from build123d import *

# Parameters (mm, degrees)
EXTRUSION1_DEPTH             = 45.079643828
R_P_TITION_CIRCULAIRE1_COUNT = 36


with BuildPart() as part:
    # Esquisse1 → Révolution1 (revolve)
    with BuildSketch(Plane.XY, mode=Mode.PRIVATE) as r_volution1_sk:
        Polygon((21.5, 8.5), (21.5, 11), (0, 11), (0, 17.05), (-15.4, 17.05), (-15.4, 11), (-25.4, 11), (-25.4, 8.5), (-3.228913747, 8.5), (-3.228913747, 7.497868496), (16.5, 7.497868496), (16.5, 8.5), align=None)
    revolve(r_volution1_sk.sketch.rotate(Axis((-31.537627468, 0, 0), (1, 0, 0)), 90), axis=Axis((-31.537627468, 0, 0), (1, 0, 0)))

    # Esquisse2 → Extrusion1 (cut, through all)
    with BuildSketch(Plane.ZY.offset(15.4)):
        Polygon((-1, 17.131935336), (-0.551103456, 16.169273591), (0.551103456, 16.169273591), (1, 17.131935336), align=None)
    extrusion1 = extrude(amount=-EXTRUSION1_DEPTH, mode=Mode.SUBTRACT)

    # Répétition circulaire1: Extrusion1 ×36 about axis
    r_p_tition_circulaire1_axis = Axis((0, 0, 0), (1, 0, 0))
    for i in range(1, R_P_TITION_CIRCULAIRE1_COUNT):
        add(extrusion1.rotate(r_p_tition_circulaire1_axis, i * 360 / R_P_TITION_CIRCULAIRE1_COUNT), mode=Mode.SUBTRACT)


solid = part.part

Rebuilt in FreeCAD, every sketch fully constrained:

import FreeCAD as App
import Part
import Sketcher
from FreeCAD import Vector
Q = App.Units.Quantity

doc = App.newDocument("Part")
body = doc.addObject("PartDesign::Body", "Body")

sketch1 = body.newObject("Sketcher::SketchObject", "Sketch")
sketch1.AttachmentSupport = (doc.getObject("XY_Plane"), [""])
sketch1.MapMode = "FlatFace"
sketch1.addGeometry([
    Part.LineSegment(Vector(21.5, 8.5, 0), Vector(21.5, 11, 0)),
    Part.LineSegment(Vector(21.5, 11, 0), Vector(0, 11, 0)),
    Part.LineSegment(Vector(0, 11, 0), Vector(0, 17.1, 0)),
    Part.LineSegment(Vector(0, 17.1, 0), Vector(-15.4, 17.1, 0)),
    Part.LineSegment(Vector(-15.4, 17.1, 0), Vector(-15.4, 11, 0)),
    Part.LineSegment(Vector(-15.4, 11, 0), Vector(-25.4, 11, 0)),
    Part.LineSegment(Vector(-25.4, 11, 0), Vector(-25.4, 8.5, 0)),
    Part.LineSegment(Vector(-25.4, 8.5, 0), Vector(-3.2, 8.5, 0)),
    Part.LineSegment(Vector(-3.2, 8.5, 0), Vector(-3.2, 7.5, 0)),
    Part.LineSegment(Vector(-3.2, 7.5, 0), Vector(16.5, 7.5, 0)),
    Part.LineSegment(Vector(16.5, 7.5, 0), Vector(16.5, 8.5, 0)),
    Part.LineSegment(Vector(16.5, 8.5, 0), Vector(21.5, 8.5, 0)),
], False)
sketch1.addConstraint([
    Sketcher.Constraint("Coincident", 0, 2, 1, 1),
    Sketcher.Constraint("Coincident", 1, 2, 2, 1),
    Sketcher.Constraint("Coincident", 2, 2, 3, 1),
    Sketcher.Constraint("Coincident", 3, 2, 4, 1),
    Sketcher.Constraint("Coincident", 4, 2, 5, 1),
    Sketcher.Constraint("Coincident", 5, 2, 6, 1),
    Sketcher.Constraint("Coincident", 6, 2, 7, 1),
    Sketcher.Constraint("Coincident", 7, 2, 8, 1),
    Sketcher.Constraint("Coincident", 8, 2, 9, 1),
    Sketcher.Constraint("Coincident", 9, 2, 10, 1),
    Sketcher.Constraint("Coincident", 10, 2, 11, 1),
    Sketcher.Constraint("Coincident", 11, 2, 0, 1),
    Sketcher.Constraint("Vertical", 0),
    Sketcher.Constraint("Horizontal", 1),
    Sketcher.Constraint("Vertical", 2),
    Sketcher.Constraint("Horizontal", 3),
    Sketcher.Constraint("Vertical", 4),
    Sketcher.Constraint("Horizontal", 5),
    Sketcher.Constraint("Vertical", 6),
    Sketcher.Constraint("Horizontal", 7),
    Sketcher.Constraint("Vertical", 8),
    Sketcher.Constraint("Horizontal", 9),
    Sketcher.Constraint("Vertical", 10),
    Sketcher.Constraint("Horizontal", 11),
    Sketcher.Constraint("PointOnObject", 1, 2, -2),
    Sketcher.Constraint("Horizontal", 1, 2, 4, 2),
    Sketcher.Constraint("Horizontal", 7, 2, 10, 2),
    Sketcher.Constraint("DistanceX", 5, 2, 5, 1, Q("10 mm")),
    Sketcher.Constraint("DistanceX", 11, 1, 11, 2, Q("5 mm")),
    Sketcher.Constraint("DistanceX", 1, 2, 1, 1, Q("21.5 mm")),
    Sketcher.Constraint("DistanceX", 3, 2, 3, 1, Q("15.4 mm")),
    Sketcher.Constraint("DistanceY", 0, 1, 0, 2, Q("2.5 mm")),
    Sketcher.Constraint("DistanceY", -1, 1, 0, 2, Q("11 mm")),
    Sketcher.Constraint("DistanceY", 2, 1, 2, 2, Q("6.05 mm")),
    Sketcher.Constraint("DistanceY", 8, 2, 8, 1, Q("1.002132 mm")),
    Sketcher.Constraint("DistanceX", 7, 1, 7, 2, Q("22.171086 mm")),
])
revolution = body.newObject("PartDesign::Revolution", "Revolution")
revolution.Profile = sketch1
revolution.ReferenceAxis = (sketch1, ["H_Axis"])
revolution.Angle = 360

sketch2 = body.newObject("Sketcher::SketchObject", "Sketch001")
sketch2.AttachmentSupport = (doc.getObject("YZ_Plane"), [""])
sketch2.MapMode = "FlatFace"
sketch2.AttachmentOffset = App.Placement(Vector(0, 0, -15.4), App.Rotation())
sketch2.addGeometry([
    Part.LineSegment(Vector(17.1, -1, 0), Vector(16.2, -0.6, 0)),
    Part.LineSegment(Vector(16.2, -0.6, 0), Vector(16.2, 0.6, 0)),
    Part.LineSegment(Vector(16.2, 0.6, 0), Vector(17.1, 1, 0)),
    Part.LineSegment(Vector(17.1, 1, 0), Vector(17.1, -1, 0)),
], False)
sketch2.addConstraint([
    Sketcher.Constraint("Coincident", 0, 2, 1, 1),
    Sketcher.Constraint("Coincident", 1, 2, 2, 1),
    Sketcher.Constraint("Coincident", 2, 2, 3, 1),
    Sketcher.Constraint("Coincident", 3, 2, 0, 1),
    Sketcher.Constraint("Vertical", 1),
    Sketcher.Constraint("Vertical", 3),
    Sketcher.Constraint("Equal", 0, 2),
    Sketcher.Constraint("DistanceY", 3, 2, 3, 1, Q("2 mm")),
    Sketcher.Constraint("Angle", 0, Q("155 deg")),
    Sketcher.Constraint("DistanceY", -1, 1, 2, 2, Q("1 mm")),
    Sketcher.Constraint("Distance", 0, Q("1.06218 mm")),
    Sketcher.Constraint("DistanceX", -1, 1, 0, 2, Q("16.169274 mm")),
])
pocket1 = body.newObject("PartDesign::Pocket", "Pocket")
pocket1.Profile = sketch2
pocket1.Type = "ThroughAll"
pocket1.Reversed = True
doc.recompute()

polarpattern = body.newObject("PartDesign::PolarPattern", "PolarPattern")
polarpattern.Originals = [pocket1]
polarpattern.Axis = (doc.getObject("X_Axis"), [""])
polarpattern.Angle = 360
polarpattern.Occurrences = 36
body.Tip = polarpattern

doc.recompute()
